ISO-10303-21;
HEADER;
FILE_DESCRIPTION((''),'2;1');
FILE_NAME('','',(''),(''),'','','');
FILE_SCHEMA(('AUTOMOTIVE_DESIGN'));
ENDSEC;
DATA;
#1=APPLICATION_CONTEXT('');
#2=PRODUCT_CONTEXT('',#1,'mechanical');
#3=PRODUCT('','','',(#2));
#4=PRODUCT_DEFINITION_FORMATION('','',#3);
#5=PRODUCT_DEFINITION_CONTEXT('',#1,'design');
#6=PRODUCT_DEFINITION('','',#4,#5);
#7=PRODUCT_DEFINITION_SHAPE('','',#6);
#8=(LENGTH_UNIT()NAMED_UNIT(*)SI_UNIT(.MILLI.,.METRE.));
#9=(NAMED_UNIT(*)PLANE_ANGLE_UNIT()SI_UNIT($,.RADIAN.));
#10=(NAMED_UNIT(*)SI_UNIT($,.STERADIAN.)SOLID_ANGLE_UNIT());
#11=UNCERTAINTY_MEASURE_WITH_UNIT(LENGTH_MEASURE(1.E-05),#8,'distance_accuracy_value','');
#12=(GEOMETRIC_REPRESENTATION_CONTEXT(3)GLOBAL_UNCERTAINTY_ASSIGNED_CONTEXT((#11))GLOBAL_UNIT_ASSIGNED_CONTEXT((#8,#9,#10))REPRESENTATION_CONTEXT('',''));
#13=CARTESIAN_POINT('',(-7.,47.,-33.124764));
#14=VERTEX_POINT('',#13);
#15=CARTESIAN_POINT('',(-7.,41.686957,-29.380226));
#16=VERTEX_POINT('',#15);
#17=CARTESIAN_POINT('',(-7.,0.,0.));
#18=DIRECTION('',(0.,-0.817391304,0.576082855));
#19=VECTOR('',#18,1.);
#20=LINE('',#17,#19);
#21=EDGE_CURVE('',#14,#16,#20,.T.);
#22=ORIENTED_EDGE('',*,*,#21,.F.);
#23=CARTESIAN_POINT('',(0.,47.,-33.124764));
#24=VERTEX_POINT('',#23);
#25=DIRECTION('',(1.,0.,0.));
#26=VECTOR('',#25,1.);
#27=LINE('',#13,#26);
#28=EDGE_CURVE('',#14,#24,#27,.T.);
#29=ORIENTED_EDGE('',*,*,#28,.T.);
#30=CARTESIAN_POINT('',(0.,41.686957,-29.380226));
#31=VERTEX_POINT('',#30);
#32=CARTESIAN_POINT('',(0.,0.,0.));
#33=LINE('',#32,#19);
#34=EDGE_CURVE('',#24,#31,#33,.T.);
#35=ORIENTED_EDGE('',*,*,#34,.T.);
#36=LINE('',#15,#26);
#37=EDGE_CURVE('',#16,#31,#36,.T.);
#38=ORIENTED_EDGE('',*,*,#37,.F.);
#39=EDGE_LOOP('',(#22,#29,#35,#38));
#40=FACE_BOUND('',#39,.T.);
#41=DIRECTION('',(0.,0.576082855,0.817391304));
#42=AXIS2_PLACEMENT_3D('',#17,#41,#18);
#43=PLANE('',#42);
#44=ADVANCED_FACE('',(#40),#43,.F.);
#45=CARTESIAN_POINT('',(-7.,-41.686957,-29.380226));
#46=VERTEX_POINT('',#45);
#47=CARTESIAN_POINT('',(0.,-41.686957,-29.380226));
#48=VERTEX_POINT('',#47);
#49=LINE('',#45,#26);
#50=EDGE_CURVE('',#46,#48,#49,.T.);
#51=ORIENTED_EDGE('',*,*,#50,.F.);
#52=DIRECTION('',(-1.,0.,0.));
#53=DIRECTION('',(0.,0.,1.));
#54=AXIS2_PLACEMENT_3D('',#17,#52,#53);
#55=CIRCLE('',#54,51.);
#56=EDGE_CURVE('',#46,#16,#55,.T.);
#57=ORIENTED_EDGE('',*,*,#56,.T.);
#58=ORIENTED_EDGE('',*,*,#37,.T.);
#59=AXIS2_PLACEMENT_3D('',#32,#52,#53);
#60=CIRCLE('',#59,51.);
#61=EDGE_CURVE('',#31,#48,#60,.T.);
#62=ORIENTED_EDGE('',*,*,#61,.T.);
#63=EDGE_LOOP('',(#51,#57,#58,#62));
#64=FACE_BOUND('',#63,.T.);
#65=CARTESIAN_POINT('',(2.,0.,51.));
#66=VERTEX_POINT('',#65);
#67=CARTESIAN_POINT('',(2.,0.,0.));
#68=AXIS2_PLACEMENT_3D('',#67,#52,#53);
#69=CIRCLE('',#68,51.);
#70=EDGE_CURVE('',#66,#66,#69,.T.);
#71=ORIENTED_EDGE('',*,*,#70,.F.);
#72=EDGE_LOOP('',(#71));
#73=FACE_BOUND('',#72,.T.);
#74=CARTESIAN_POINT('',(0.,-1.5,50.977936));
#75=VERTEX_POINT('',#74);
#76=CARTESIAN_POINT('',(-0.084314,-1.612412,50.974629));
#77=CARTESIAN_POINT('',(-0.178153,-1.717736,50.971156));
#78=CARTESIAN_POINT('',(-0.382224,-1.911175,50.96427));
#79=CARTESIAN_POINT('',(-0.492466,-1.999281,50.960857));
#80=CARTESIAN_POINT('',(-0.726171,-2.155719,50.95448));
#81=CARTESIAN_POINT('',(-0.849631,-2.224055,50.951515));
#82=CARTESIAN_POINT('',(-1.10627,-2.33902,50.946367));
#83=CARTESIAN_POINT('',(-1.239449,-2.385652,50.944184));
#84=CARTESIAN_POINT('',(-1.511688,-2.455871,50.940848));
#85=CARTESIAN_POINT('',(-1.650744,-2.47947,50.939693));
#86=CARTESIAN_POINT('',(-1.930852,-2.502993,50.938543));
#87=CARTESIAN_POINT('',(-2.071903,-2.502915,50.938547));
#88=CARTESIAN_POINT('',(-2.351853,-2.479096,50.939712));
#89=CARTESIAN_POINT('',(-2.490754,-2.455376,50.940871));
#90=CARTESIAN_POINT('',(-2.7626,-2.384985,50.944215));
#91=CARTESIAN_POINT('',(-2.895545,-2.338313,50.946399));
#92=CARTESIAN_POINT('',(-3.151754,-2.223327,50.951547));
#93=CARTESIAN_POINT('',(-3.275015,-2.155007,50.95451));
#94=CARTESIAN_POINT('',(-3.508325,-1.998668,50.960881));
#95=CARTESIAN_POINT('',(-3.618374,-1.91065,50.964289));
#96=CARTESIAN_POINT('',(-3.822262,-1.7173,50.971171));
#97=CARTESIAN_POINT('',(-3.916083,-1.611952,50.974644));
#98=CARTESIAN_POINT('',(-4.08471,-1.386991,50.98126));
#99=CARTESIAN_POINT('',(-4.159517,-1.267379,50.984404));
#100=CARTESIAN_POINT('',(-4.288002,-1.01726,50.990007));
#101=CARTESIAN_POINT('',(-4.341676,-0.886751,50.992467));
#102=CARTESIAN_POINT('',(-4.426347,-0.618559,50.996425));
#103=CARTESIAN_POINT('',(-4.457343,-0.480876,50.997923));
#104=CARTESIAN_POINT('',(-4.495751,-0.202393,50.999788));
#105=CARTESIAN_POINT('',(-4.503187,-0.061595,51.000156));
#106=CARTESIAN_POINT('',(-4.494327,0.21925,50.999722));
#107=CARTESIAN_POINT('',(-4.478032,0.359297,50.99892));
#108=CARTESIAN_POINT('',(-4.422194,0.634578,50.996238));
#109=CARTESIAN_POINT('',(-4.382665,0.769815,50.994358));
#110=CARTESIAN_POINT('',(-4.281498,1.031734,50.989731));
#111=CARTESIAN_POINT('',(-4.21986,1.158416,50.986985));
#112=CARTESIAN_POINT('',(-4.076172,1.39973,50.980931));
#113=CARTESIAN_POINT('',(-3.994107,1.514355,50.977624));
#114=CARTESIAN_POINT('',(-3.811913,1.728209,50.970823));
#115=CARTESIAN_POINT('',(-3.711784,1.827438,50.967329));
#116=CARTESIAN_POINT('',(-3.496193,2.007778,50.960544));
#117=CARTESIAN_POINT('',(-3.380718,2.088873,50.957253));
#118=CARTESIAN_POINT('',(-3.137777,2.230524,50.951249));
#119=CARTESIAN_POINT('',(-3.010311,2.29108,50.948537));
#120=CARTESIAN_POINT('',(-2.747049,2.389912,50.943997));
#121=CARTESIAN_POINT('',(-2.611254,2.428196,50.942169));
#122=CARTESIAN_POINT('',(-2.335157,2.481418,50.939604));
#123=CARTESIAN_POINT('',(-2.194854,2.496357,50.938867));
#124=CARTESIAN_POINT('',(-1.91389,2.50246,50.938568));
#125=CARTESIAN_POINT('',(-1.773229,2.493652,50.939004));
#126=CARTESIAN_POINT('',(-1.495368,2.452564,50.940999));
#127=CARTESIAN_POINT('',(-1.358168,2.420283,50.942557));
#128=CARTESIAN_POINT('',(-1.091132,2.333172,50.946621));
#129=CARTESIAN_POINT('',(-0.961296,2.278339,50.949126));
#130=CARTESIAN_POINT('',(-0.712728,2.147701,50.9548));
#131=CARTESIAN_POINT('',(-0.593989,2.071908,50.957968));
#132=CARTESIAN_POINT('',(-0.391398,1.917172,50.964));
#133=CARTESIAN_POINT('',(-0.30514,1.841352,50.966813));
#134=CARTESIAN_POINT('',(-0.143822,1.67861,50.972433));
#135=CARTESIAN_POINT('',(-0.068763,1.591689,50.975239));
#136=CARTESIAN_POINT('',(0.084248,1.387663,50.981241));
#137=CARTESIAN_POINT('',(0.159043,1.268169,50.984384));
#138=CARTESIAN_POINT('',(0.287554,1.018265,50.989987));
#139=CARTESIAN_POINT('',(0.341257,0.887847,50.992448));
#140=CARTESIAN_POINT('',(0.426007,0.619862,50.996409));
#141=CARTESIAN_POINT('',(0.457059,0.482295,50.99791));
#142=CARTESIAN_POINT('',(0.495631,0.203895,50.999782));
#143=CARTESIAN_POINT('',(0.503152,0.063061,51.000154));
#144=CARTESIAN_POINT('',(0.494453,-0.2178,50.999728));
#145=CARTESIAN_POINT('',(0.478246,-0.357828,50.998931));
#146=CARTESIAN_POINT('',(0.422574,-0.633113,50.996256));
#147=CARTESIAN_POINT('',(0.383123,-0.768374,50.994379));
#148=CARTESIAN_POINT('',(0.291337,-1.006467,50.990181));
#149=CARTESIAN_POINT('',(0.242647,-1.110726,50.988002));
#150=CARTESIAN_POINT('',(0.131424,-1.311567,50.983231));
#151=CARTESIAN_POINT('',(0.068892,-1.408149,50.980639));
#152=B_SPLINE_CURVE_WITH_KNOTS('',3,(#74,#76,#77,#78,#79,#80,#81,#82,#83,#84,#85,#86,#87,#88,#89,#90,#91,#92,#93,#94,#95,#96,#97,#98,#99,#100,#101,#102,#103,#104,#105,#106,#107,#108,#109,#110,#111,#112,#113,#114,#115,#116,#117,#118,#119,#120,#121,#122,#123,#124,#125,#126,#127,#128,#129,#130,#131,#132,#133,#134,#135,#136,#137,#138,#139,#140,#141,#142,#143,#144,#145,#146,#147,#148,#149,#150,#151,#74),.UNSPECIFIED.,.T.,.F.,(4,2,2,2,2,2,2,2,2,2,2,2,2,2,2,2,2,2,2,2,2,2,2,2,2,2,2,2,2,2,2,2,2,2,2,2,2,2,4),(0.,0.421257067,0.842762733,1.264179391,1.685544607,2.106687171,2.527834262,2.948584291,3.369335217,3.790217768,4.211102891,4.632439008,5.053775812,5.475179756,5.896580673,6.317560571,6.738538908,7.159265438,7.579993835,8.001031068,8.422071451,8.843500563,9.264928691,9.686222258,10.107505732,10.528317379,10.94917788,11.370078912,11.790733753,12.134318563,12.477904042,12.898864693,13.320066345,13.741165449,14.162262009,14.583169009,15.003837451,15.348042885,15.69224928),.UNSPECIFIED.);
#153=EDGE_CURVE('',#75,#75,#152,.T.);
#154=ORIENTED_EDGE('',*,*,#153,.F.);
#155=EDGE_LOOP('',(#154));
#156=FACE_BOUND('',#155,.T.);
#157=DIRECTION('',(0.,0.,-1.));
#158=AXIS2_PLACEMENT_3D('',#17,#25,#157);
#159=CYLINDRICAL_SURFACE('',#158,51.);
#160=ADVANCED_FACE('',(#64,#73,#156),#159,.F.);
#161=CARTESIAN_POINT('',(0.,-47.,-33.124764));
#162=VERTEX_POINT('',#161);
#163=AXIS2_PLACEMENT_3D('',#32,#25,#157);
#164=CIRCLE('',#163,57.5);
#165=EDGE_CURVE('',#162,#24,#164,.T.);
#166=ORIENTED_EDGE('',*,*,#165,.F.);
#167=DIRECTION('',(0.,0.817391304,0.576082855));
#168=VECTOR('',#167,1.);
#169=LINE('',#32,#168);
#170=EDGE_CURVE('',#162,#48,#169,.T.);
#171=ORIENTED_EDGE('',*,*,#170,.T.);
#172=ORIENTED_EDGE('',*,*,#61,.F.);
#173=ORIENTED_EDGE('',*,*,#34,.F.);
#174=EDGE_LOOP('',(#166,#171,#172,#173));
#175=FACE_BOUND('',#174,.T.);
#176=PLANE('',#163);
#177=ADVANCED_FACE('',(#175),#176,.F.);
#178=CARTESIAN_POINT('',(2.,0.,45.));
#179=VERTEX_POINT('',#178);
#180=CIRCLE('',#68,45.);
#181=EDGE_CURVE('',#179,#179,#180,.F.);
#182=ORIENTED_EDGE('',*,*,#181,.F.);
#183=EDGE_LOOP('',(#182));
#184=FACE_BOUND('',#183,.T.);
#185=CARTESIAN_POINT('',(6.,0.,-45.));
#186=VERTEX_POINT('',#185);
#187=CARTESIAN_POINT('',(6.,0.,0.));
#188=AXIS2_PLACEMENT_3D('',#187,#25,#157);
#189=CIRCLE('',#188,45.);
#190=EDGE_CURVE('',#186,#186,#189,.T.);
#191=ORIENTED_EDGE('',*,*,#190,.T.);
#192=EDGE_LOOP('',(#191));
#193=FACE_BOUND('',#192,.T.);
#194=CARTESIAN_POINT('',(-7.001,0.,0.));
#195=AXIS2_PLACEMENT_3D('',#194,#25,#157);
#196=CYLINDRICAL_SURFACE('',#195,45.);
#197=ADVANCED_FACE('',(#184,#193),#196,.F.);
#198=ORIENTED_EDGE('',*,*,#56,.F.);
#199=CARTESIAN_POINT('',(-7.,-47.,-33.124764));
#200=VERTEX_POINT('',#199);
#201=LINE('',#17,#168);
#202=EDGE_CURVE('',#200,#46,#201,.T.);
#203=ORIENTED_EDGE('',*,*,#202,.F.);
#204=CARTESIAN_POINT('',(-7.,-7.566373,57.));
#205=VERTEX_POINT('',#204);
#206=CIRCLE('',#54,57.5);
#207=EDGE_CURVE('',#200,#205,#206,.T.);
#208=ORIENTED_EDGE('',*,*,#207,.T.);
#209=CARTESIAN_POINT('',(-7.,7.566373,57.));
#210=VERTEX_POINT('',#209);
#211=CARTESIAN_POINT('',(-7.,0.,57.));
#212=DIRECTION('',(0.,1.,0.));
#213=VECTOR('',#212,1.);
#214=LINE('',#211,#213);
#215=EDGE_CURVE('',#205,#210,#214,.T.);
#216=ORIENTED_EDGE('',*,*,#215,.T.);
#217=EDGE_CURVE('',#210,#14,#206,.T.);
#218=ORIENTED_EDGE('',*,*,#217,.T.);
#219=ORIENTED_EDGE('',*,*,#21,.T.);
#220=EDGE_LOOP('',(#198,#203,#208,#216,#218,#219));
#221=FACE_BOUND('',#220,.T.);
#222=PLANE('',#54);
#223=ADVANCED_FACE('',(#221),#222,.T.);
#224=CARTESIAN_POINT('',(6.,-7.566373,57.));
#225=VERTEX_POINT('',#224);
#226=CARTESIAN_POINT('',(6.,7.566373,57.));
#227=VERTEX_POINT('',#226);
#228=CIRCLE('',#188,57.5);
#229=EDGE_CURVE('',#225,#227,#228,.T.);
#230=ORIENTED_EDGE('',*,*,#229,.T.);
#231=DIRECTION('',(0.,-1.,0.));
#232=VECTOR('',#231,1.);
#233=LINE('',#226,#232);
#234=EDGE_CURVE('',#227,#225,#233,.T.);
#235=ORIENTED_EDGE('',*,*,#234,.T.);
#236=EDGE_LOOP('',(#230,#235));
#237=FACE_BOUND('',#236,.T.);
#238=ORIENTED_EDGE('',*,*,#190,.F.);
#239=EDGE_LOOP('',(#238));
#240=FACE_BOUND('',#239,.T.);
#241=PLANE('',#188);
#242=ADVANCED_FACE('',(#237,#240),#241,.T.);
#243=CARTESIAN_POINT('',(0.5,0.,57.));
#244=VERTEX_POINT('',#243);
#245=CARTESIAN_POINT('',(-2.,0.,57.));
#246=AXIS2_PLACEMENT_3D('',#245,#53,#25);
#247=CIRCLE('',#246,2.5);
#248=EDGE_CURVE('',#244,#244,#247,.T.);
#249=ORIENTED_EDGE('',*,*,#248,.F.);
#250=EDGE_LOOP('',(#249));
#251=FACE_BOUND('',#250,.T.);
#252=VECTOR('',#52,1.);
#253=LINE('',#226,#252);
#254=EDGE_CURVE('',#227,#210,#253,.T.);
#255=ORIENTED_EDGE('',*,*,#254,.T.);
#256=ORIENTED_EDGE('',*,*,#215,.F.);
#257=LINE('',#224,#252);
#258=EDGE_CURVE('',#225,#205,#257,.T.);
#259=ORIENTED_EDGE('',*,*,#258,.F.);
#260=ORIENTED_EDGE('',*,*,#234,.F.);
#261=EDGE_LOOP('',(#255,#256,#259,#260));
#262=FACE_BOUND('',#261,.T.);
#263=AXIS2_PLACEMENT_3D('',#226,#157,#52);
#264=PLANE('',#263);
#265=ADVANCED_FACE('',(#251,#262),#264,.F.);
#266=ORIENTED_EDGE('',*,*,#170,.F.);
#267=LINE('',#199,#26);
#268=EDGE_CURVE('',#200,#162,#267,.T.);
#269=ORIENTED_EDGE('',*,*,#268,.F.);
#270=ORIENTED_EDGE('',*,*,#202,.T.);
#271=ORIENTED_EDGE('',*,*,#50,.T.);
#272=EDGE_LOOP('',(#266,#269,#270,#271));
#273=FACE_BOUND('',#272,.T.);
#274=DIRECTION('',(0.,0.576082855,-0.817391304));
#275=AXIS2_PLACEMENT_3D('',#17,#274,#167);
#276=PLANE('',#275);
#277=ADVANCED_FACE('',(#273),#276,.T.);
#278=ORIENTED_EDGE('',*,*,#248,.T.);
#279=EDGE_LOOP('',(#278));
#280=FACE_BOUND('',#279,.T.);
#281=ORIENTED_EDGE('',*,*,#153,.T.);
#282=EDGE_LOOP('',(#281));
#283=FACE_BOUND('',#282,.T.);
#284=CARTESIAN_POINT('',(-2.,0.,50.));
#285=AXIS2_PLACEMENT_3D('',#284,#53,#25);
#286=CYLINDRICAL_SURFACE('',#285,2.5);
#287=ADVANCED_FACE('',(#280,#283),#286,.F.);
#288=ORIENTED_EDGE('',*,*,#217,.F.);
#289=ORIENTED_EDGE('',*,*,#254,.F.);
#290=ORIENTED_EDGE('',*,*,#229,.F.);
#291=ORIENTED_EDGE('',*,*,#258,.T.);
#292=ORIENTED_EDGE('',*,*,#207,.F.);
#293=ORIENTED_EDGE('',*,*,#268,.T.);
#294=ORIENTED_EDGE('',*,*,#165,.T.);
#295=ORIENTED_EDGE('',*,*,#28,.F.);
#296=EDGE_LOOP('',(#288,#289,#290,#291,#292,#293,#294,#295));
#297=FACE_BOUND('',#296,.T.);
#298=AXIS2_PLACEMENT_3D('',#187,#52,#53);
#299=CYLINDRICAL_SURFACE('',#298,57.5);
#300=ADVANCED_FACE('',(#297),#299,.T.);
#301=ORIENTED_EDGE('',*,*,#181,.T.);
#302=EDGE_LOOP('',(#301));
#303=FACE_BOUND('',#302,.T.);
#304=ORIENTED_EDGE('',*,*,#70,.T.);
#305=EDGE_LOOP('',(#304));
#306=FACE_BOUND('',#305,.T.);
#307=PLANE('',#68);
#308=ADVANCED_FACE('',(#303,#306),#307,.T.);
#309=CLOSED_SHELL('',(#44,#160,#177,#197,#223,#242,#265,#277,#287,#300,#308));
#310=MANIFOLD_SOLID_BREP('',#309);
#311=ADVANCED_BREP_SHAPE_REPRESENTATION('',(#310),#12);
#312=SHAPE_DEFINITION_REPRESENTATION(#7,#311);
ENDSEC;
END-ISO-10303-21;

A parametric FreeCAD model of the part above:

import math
import FreeCAD as App
import Part
import Sketcher

V = App.Vector

doc = App.newDocument("Part")
body = doc.addObject("PartDesign::Body", "Body")

sketch1 = doc.addObject("Sketcher::SketchObject", "Sketch")
body.addObject(sketch1)
sketch1.AttachmentSupport = (doc.YZ_Plane, [""])
sketch1.MapMode = "FlatFace"
sketch1.addGeometry(Part.LineSegment(V(8, 57, 0), V(-8, 57, 0)), False)
sketch1.addGeometry(Part.ArcOfCircle(Part.Circle(V(0, 0, 0), V(0, 0, 1), 58), math.radians(98), math.radians(442)), False)
sketch1.addConstraint(Sketcher.Constraint("Coincident", 0, 1, 1, 2))
sketch1.addConstraint(Sketcher.Constraint("Coincident", 1, 1, 0, 2))
sketch1.addConstraint(Sketcher.Constraint("Horizontal", 0))
sketch1.addConstraint(Sketcher.Constraint("Coincident", 1, 3, -1, 1))
sketch1.addConstraint(Sketcher.Constraint("Radius", 1, 57.5))
sketch1.addConstraint(Sketcher.Constraint("DistanceY", -1, 1, 0, 1, 57.0))
pad1 = doc.addObject("PartDesign::Pad", "Pad")
body.addObject(pad1)
pad1.Profile = sketch1
pad1.Length = 6

sketch2 = doc.addObject("Sketcher::SketchObject", "Sketch001")
body.addObject(sketch2)
sketch2.AttachmentSupport = (doc.YZ_Plane, [""])
sketch2.MapMode = "FlatFace"
sketch2.AttachmentOffset = App.Placement(V(0, 0, -7), App.Rotation())
sketch2.addGeometry(Part.LineSegment(V(-42, -29, 0), V(-47, -33, 0)), False)
sketch2.addGeometry(Part.ArcOfCircle(Part.Circle(V(0, 0, 0), V(0, 0, 1), 58), math.radians(98), math.radians(215)), False)
sketch2.addGeometry(Part.LineSegment(V(-8, 57, 0), V(8, 57, 0)), False)
sketch2.addGeometry(Part.ArcOfCircle(Part.Circle(V(0, 0, 0), V(0, 0, 1), 58), math.radians(-35), math.radians(82)), False)
sketch2.addGeometry(Part.LineSegment(V(47, -33, 0), V(42, -29, 0)), False)
sketch2.addGeometry(Part.ArcOfCircle(Part.Circle(V(0, 0, 0), V(0, 0, 1), 51), math.radians(-35), math.radians(82)), False)
sketch2.addGeometry(Part.ArcOfCircle(Part.Circle(V(0, 0, 0), V(0, 0, 1), 51), math.radians(82.44), math.radians(90)), False)
sketch2.addGeometry(Part.ArcOfCircle(Part.Circle(V(0, 0, 0), V(0, 0, 1), 51), math.radians(90), math.radians(97.56)), False)
sketch2.addGeometry(Part.ArcOfCircle(Part.Circle(V(0, 0, 0), V(0, 0, 1), 51), math.radians(98), math.radians(215)), False)
sketch2.addConstraint(Sketcher.Constraint("Coincident", 0, 2, 1, 2))
sketch2.addConstraint(Sketcher.Constraint("Coincident", 1, 1, 2, 1))
sketch2.addConstraint(Sketcher.Constraint("Coincident", 2, 2, 3, 2))
sketch2.addConstraint(Sketcher.Constraint("Coincident", 3, 1, 4, 1))
sketch2.addConstraint(Sketcher.Constraint("Coincident", 4, 2, 5, 1))
sketch2.addConstraint(Sketcher.Constraint("Tangent", 5, 2, 6, 1))
sketch2.addConstraint(Sketcher.Constraint("Tangent", 6, 2, 7, 1))
sketch2.addConstraint(Sketcher.Constraint("Tangent", 7, 2, 8, 1))
sketch2.addConstraint(Sketcher.Constraint("Coincident", 8, 2, 0, 1))
sketch2.addConstraint(Sketcher.Constraint("Horizontal", 2))
sketch2.addConstraint(Sketcher.Constraint("Coincident", 1, 3, -1, 1))
sketch2.addConstraint(Sketcher.Constraint("Coincident", 3, 3, -1, 1))
sketch2.addConstraint(Sketcher.Constraint("Coincident", 5, 3, -1, 1))
sketch2.addConstraint(Sketcher.Constraint("Coincident", 7, 3, -1, 1))
sketch2.addConstraint(Sketcher.Constraint("Equal", 1, 3))
sketch2.addConstraint(Sketcher.Constraint("Equal", 7, 8))
sketch2.addConstraint(Sketcher.Constraint("PointOnObject", 6, 2, -2))
sketch2.addConstraint(Sketcher.Constraint("Horizontal", 0, 2, 3, 1))
sketch2.addConstraint(Sketcher.Constraint("Horizontal", 5, 2, 7, 2))
sketch2.addConstraint(Sketcher.Constraint("Horizontal", 4, 2, 8, 2))
sketch2.addConstraint(Sketcher.Constraint("Radius", 5, 51.0))
sketch2.addConstraint(Sketcher.Constraint("Radius", 1, 57.5))
sketch2.addConstraint(Sketcher.Constraint("DistanceX", 0, 2, -1, 1, 47.0))
sketch2.addConstraint(Sketcher.Constraint("DistanceY", -1, 1, 1, 1, 57.0))
sketch2.addConstraint(Sketcher.Constraint("DistanceY", -1, 1, 5, 2, 50.556522))
sketch2.addConstraint(Sketcher.Constraint("DistanceY", 3, 1, 4, 2, 3.744539))
pad2 = doc.addObject("PartDesign::Pad", "Pad001")
body.addObject(pad2)
pad2.Profile = sketch2
pad2.Length = 7

sketch3 = doc.addObject("Sketcher::SketchObject", "Sketch002")
body.addObject(sketch3)
sketch3.AttachmentSupport = (doc.XY_Plane, [""])
sketch3.MapMode = "FlatFace"
sketch3.AttachmentOffset = App.Placement(V(0, 0, 57), App.Rotation())
sketch3.addGeometry(Part.Circle(V(-2, 0, 0), V(0, 0, 1), 2.5), False)
sketch3.addConstraint(Sketcher.Constraint("PointOnObject", 0, 3, -1))
sketch3.addConstraint(Sketcher.Constraint("Diameter", 0, 5.0))
sketch3.addConstraint(Sketcher.Constraint("DistanceX", 0, 3, -1, 1, 2.0))
pocket1 = doc.addObject("PartDesign::Pocket", "Pocket")
body.addObject(pocket1)
pocket1.Profile = sketch3
pocket1.Length = 7

sketch4 = doc.addObject("Sketcher::SketchObject", "Sketch003")
body.addObject(sketch4)
sketch4.AttachmentSupport = (doc.YZ_Plane, [""])
sketch4.MapMode = "FlatFace"
sketch4.AttachmentOffset = App.Placement(V(0, 0, 6), App.Rotation())
sketch4.addGeometry(Part.ArcOfCircle(Part.Circle(V(0, 0, 0), V(0, 0, 1), 45), math.radians(98), math.radians(442)), False)
sketch4.addGeometry(Part.ArcOfCircle(Part.Circle(V(0, 0, 0), V(0, 0, 1), 45), math.radians(82.44), math.radians(97.56)), False)
sketch4.addGeometry(Part.ArcOfCircle(Part.Circle(V(-0.001, 0.005, 0), V(0, 0, 1), 44.995), math.radians(97.56), math.radians(97.58)), False)
sketch4.addConstraint(Sketcher.Constraint("Tangent", 0, 2, 1, 1))
sketch4.addConstraint(Sketcher.Constraint("Tangent", 1, 2, 2, 1))
sketch4.addConstraint(Sketcher.Constraint("Coincident", 2, 2, 0, 1))
sketch4.addConstraint(Sketcher.Constraint("Coincident", 0, 3, -1, 1))
sketch4.addConstraint(Sketcher.Constraint("Horizontal", 0, 2, 1, 2))
sketch4.addConstraint(Sketcher.Constraint("Radius", 0, 45.0))
sketch4.addConstraint(Sketcher.Constraint("Radius", 2, 44.995121))
sketch4.addConstraint(Sketcher.Constraint("DistanceX", 2, 2, 1, 2, 0.012299))
sketch4.addConstraint(Sketcher.Constraint("DistanceX", -1, 1, 0, 2, 5.921509))
pocket2 = doc.addObject("PartDesign::Pocket", "Pocket001")
body.addObject(pocket2)
pocket2.Profile = sketch4
pocket2.Type = "UpToFirst"

sketch5 = doc.addObject("Sketcher::SketchObject", "Sketch004")
body.addObject(sketch5)
sketch5.AttachmentSupport = (doc.YZ_Plane, [""])
sketch5.MapMode = "FlatFace"
sketch5.addGeometry(Part.Circle(V(0, 0, 0), V(0, 0, 1), 51), False)
sketch5.addConstraint(Sketcher.Constraint("Coincident", 0, 3, -1, 1))
sketch5.addConstraint(Sketcher.Constraint("Diameter", 0, 102.0))
pocket3 = doc.addObject("PartDesign::Pocket", "Pocket002")
body.addObject(pocket3)
pocket3.Profile = sketch5
pocket3.Length = 2
pocket3.Reversed = True

doc.recompute()
